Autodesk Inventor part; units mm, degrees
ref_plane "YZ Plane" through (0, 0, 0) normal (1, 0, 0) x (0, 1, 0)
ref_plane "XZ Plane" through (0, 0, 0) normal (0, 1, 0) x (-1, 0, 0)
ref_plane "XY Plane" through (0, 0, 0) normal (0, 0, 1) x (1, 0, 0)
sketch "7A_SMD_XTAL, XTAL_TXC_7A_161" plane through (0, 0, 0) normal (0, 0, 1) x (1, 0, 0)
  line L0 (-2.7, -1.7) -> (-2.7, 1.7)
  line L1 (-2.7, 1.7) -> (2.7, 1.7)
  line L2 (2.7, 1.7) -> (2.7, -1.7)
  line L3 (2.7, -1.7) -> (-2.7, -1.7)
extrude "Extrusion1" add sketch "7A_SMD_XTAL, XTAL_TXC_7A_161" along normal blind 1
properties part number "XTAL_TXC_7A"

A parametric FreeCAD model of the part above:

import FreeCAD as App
import Part
import Sketcher

V = App.Vector

doc = App.newDocument("Part")
body = doc.addObject("PartDesign::Body", "Body")

# Sketch on XY plane
sketch1 = body.newObject("Sketcher::SketchObject", "Sketch")
sketch1.AttachmentSupport = (doc.getObject("XY_Plane"), [""])
sketch1.MapMode = "FlatFace"
sketch1.addGeometry(Part.LineSegment(V(-2.7, 1.7, 0), V(-2.7, -1.7, 0)), False)
sketch1.addGeometry(Part.LineSegment(V(-2.7, -1.7, 0), V(2.7, -1.7, 0)), False)
sketch1.addGeometry(Part.LineSegment(V(2.7, -1.7, 0), V(2.7, 1.7, 0)), False)
sketch1.addGeometry(Part.LineSegment(V(2.7, 1.7, 0), V(-2.7, 1.7, 0)), False)
sketch1.addConstraint(Sketcher.Constraint("Coincident", 0, 2, 1, 1))
sketch1.addConstraint(Sketcher.Constraint("Coincident", 1, 2, 2, 1))
sketch1.addConstraint(Sketcher.Constraint("Coincident", 2, 2, 3, 1))
sketch1.addConstraint(Sketcher.Constraint("Coincident", 3, 2, 0, 1))
sketch1.addConstraint(Sketcher.Constraint("Vertical", 0))
sketch1.addConstraint(Sketcher.Constraint("Horizontal", 1))
sketch1.addConstraint(Sketcher.Constraint("Vertical", 2))
sketch1.addConstraint(Sketcher.Constraint("Horizontal", 3))
sketch1.addConstraint(Sketcher.Constraint("Symmetric", 0, 2, 2, 2, -1, 1))
sketch1.addConstraint(Sketcher.Constraint("DistanceX", 1, 1, 1, 2, 5.4))
sketch1.addConstraint(Sketcher.Constraint("DistanceY", 0, 2, 0, 1, 3.4))
pad1 = body.newObject("PartDesign::Pad", "Pad")
pad1.Profile = sketch1
pad1.Length = 1

doc.recompute()
